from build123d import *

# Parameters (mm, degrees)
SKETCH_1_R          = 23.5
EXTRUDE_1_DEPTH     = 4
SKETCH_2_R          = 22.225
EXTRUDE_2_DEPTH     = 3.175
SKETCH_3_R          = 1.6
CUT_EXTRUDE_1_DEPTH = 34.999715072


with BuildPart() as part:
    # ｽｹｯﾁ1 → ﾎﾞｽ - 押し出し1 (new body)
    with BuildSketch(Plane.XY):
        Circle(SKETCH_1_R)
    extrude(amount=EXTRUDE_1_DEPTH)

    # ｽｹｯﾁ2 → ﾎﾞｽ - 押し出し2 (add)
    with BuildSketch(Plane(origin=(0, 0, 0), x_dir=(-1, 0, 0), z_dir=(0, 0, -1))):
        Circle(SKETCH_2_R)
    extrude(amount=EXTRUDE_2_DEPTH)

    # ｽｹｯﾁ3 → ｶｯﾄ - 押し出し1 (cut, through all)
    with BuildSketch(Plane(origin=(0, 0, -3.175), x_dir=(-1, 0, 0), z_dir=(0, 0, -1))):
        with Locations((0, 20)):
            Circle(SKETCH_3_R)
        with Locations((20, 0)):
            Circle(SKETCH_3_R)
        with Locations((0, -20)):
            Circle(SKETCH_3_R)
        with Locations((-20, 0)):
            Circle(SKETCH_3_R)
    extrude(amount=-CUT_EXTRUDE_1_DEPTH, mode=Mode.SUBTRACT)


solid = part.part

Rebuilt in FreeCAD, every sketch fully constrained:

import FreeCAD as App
import Part
import Sketcher

V = App.Vector

doc = App.newDocument("Part")
body = doc.addObject("PartDesign::Body", "Body")

# Sketch on XY plane
sketch1 = body.newObject("Sketcher::SketchObject", "Sketch")
sketch1.AttachmentSupport = (doc.getObject("XY_Plane"), [""])
sketch1.MapMode = "FlatFace"
sketch1.addGeometry(Part.Circle(V(0, 0, 0), V(0, 0, 1), 24), False)
sketch1.addConstraint([
    Sketcher.Constraint("Coincident", 0, 3, -1, 1),
    Sketcher.Constraint("Diameter", 0, 47.0),
])
pad1 = body.newObject("PartDesign::Pad", "Pad")
pad1.Profile = sketch1
pad1.Length = 4

# Sketch on XY plane
sketch2 = body.newObject("Sketcher::SketchObject", "Sketch001")
sketch2.AttachmentSupport = (doc.getObject("XY_Plane"), [""])
sketch2.MapMode = "FlatFace"
sketch2.addGeometry(Part.Circle(V(0, 0, 0), V(0, 0, 1), 22), False)
sketch2.addConstraint([
    Sketcher.Constraint("Coincident", 0, 3, -1, 1),
    Sketcher.Constraint("Diameter", 0, 44.45),
])
pad2 = body.newObject("PartDesign::Pad", "Pad001")
pad2.Profile = sketch2
pad2.Length = 3.175
pad2.Reversed = True

# Sketch on XY plane
sketch3 = body.newObject("Sketcher::SketchObject", "Sketch002")
sketch3.AttachmentSupport = (doc.getObject("XY_Plane"), [""])
sketch3.MapMode = "FlatFace"
sketch3.AttachmentOffset = App.Placement(V(0, 0, -3.175), App.Rotation())
sketch3.addGeometry([
    Part.Circle(V(0, 20, 0), V(0, 0, 1), 1.6),
    Part.Circle(V(-20, 0, 0), V(0, 0, 1), 1.6),
    Part.Circle(V(0, -20, 0), V(0, 0, 1), 1.6),
    Part.Circle(V(20, 0, 0), V(0, 0, 1), 1.6),
], False)
sketch3.addConstraint([
    Sketcher.Constraint("Equal", 0, 1),
    Sketcher.Constraint("Equal", 1, 2),
    Sketcher.Constraint("Equal", 2, 3),
    Sketcher.Constraint("Symmetric", 0, 3, 2, 3, -1, 1),
    Sketcher.Constraint("Symmetric", 1, 3, 3, 3, -1, 1),
    Sketcher.Constraint("PointOnObject", 0, 3, -2),
    Sketcher.Constraint("PointOnObject", 1, 3, -1),
    Sketcher.Constraint("Diameter", 0, 3.2),
    Sketcher.Constraint("DistanceY", -1, 1, 0, 3, 20.0),
    Sketcher.Constraint("DistanceX", 1, 3, -1, 1, 20.0),
])
pocket1 = body.newObject("PartDesign::Pocket", "Pocket")
pocket1.Profile = sketch3
pocket1.Type = "ThroughAll"
pocket1.Reversed = True

doc.recompute()
